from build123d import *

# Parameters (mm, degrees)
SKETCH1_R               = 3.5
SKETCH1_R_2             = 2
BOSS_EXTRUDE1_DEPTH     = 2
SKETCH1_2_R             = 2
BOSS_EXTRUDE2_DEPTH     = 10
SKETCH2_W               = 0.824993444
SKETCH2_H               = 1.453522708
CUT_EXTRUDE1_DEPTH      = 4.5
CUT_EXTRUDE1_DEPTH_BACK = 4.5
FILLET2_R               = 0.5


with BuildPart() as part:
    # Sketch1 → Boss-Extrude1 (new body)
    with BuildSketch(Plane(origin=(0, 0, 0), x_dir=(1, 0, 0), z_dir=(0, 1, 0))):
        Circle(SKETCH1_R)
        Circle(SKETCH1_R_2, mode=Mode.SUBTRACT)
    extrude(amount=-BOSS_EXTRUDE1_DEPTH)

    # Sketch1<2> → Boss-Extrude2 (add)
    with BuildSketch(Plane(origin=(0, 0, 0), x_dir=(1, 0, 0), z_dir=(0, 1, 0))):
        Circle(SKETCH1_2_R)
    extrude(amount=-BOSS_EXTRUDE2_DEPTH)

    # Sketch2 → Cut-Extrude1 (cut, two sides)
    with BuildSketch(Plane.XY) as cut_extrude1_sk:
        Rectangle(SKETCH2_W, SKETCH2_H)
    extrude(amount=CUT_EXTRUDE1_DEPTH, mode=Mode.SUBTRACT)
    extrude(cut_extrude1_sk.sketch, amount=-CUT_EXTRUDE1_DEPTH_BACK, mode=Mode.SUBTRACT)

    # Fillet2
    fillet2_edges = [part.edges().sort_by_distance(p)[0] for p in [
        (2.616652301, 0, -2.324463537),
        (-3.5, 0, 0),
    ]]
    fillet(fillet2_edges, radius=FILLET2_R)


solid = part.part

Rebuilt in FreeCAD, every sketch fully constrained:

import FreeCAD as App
import Part
import Sketcher
from FreeCAD import Vector
Q = App.Units.Quantity


def edges_at(feature, points):
    """Names of the edges that pass closest to the given points."""
    edges = feature.Shape.Edges
    near = lambda p: min(range(len(edges)), key=lambda i: edges[i].distToShape(Part.Vertex(*p))[0])
    return sorted({f"Edge{near(p) + 1}" for p in points})


def add_polygon(sketch, points):
    """Adds a closed chain of lines whose ends are joined by coincident constraints."""
    first, n = sketch.GeometryCount, len(points)
    for a, b in zip(points, points[1:] + points[:1]):
        sketch.addGeometry(Part.LineSegment(App.Vector(*a, 0), App.Vector(*b, 0)), False)
    for i in range(n):
        sketch.addConstraint(Sketcher.Constraint("Coincident", first + i, 2, first + (i + 1) % n, 1))

doc = App.newDocument("Part")
body = doc.addObject("PartDesign::Body", "Body")

sketch1 = body.newObject("Sketcher::SketchObject", "Sketch")
sketch1.AttachmentSupport = (doc.getObject("XZ_Plane"), [""])
sketch1.MapMode = "FlatFace"
sketch1.addGeometry(Part.Circle(Vector(0, 0, 0), Vector(0, 0, 1), 3.5), False)
sketch1.addGeometry(Part.Circle(Vector(0, 0, 0), Vector(0, 0, 1), 2), False)
sketch1.addConstraint(Sketcher.Constraint("Coincident", 0, 3, -1, 1))
sketch1.addConstraint(Sketcher.Constraint("Coincident", 1, 3, -1, 1))
sketch1.addConstraint(Sketcher.Constraint("Diameter", 0, Q("7 mm")))
sketch1.addConstraint(Sketcher.Constraint("Diameter", 1, Q("4 mm")))
pad1 = body.newObject("PartDesign::Pad", "Pad")
pad1.Profile = sketch1
pad1.Length = 2

sketch2 = body.newObject("Sketcher::SketchObject", "Sketch001")
sketch2.AttachmentSupport = (doc.getObject("XZ_Plane"), [""])
sketch2.MapMode = "FlatFace"
sketch2.addGeometry(Part.Circle(Vector(0, 0, 0), Vector(0, 0, 1), 2), False)
sketch2.addConstraint(Sketcher.Constraint("Coincident", 0, 3, -1, 1))
sketch2.addConstraint(Sketcher.Constraint("Diameter", 0, Q("4 mm")))
pad2 = body.newObject("PartDesign::Pad", "Pad001")
pad2.Profile = sketch2
pad2.Length = 10

sketch3 = body.newObject("Sketcher::SketchObject", "Sketch002")
sketch3.AttachmentSupport = (doc.getObject("XY_Plane"), [""])
sketch3.MapMode = "FlatFace"
add_polygon(sketch3, [(-0.412497, 0.726761), (-0.412497, -0.726761), (0.412497, -0.726761), (0.412497, 0.726761)])
sketch3.addConstraint(Sketcher.Constraint("Vertical", 0))
sketch3.addConstraint(Sketcher.Constraint("Horizontal", 1))
sketch3.addConstraint(Sketcher.Constraint("Vertical", 2))
sketch3.addConstraint(Sketcher.Constraint("Horizontal", 3))
sketch3.addConstraint(Sketcher.Constraint("Symmetric", 0, 2, 2, 2, -1, 1))
sketch3.addConstraint(Sketcher.Constraint("DistanceX", 1, 1, 1, 2, Q("0.824993 mm")))
sketch3.addConstraint(Sketcher.Constraint("DistanceY", 0, 2, 0, 1, Q("1.453523 mm")))
pocket1 = body.newObject("PartDesign::Pocket", "Pocket")
pocket1.Profile = sketch3
pocket1.Type = "ThroughAll"
pocket1.Midplane = True
doc.recompute()

fillet = body.newObject("PartDesign::Fillet", "Fillet")
fillet.Base = (pocket1, edges_at(pocket1, [(2.617, 0, -2.324), (-3.5, 0, 0)]))
fillet.Radius = 0.5

doc.recompute()
